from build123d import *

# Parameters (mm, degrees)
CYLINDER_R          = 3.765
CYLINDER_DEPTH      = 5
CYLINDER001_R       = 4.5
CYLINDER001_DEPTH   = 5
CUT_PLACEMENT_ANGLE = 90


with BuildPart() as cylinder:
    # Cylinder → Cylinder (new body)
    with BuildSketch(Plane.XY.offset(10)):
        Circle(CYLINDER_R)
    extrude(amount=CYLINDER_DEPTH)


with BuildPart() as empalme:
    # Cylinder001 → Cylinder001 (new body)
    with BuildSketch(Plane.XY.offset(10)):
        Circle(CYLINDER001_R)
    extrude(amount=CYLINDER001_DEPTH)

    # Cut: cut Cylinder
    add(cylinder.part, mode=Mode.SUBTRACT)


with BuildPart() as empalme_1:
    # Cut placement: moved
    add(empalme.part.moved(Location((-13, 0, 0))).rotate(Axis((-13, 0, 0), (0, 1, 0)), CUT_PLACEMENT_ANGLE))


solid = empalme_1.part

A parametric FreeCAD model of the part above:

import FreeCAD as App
import Part
import Sketcher
from FreeCAD import Vector
Q = App.Units.Quantity

doc = App.newDocument("Part")
params = doc.addObject("Spreadsheet::Sheet", "Params")
for row, (alias, value) in enumerate([
    ("sketch1_diameter", "7.53 mm"),
    ("pad1_length", "5 mm"),
    ("sketch2_diameter", "9 mm"),
    ("pad2_length", "5 mm"),
], start=1):
    params.set(f"A{row}", alias)
    params.set(f"B{row}", "=" + value)
    params.setAlias(f"B{row}", alias)

body = doc.addObject("PartDesign::Body", "Body")

# Sketch on XY plane
sketch1 = body.newObject("Sketcher::SketchObject", "Sketch")
sketch1.AttachmentSupport = (doc.getObject("XY_Plane"), [""])
sketch1.MapMode = "FlatFace"
sketch1.AttachmentOffset = App.Placement(Vector(0, 0, 10), App.Rotation())
sketch1.addGeometry(Part.Circle(Vector(0, 0, 0), Vector(0, 0, 1), 3.8), False)
sketch1.addConstraint([
    Sketcher.Constraint("Coincident", 0, 3, -1, 1),
    Sketcher.Constraint("Diameter", 0, Q("7.53 mm")),
])
sketch1.setExpression("Constraints[1]", "Params.sketch1_diameter")
pad1 = body.newObject("PartDesign::Pad", "Pad")
pad1.Profile = sketch1
pad1.setExpression("Length", "Params.pad1_length")
body2 = doc.addObject("PartDesign::Body", "Body001")

# Sketch on XY plane
sketch2 = body2.newObject("Sketcher::SketchObject", "Sketch001")
sketch2.AttachmentSupport = (doc.getObject("XY_Plane001"), [""])
sketch2.MapMode = "FlatFace"
sketch2.AttachmentOffset = App.Placement(Vector(0, 0, 10), App.Rotation())
sketch2.addGeometry(Part.Circle(Vector(0, 0, 0), Vector(0, 0, 1), 4.5), False)
sketch2.addConstraint([
    Sketcher.Constraint("Coincident", 0, 3, -1, 1),
    Sketcher.Constraint("Diameter", 0, Q("9 mm")),
])
sketch2.setExpression("Constraints[1]", "Params.sketch2_diameter")
pad2 = body2.newObject("PartDesign::Pad", "Pad001")
pad2.Profile = sketch2
pad2.setExpression("Length", "Params.pad2_length")
doc.recompute()

boolean = body2.newObject("PartDesign::Boolean", "Boolean")
boolean.Type = "Cut"
boolean.addObjects([body])
body3 = doc.addObject("PartDesign::Body", "Body002")
doc.recompute()

body2.Placement = App.Placement(Vector(-13, 0, 0), App.Rotation(Vector(0, 1, 0), 90))
boolean2 = body3.newObject("PartDesign::Boolean", "Boolean001")
boolean2.Type = "Fuse"
boolean2.addObjects([body2])

doc.recompute()
